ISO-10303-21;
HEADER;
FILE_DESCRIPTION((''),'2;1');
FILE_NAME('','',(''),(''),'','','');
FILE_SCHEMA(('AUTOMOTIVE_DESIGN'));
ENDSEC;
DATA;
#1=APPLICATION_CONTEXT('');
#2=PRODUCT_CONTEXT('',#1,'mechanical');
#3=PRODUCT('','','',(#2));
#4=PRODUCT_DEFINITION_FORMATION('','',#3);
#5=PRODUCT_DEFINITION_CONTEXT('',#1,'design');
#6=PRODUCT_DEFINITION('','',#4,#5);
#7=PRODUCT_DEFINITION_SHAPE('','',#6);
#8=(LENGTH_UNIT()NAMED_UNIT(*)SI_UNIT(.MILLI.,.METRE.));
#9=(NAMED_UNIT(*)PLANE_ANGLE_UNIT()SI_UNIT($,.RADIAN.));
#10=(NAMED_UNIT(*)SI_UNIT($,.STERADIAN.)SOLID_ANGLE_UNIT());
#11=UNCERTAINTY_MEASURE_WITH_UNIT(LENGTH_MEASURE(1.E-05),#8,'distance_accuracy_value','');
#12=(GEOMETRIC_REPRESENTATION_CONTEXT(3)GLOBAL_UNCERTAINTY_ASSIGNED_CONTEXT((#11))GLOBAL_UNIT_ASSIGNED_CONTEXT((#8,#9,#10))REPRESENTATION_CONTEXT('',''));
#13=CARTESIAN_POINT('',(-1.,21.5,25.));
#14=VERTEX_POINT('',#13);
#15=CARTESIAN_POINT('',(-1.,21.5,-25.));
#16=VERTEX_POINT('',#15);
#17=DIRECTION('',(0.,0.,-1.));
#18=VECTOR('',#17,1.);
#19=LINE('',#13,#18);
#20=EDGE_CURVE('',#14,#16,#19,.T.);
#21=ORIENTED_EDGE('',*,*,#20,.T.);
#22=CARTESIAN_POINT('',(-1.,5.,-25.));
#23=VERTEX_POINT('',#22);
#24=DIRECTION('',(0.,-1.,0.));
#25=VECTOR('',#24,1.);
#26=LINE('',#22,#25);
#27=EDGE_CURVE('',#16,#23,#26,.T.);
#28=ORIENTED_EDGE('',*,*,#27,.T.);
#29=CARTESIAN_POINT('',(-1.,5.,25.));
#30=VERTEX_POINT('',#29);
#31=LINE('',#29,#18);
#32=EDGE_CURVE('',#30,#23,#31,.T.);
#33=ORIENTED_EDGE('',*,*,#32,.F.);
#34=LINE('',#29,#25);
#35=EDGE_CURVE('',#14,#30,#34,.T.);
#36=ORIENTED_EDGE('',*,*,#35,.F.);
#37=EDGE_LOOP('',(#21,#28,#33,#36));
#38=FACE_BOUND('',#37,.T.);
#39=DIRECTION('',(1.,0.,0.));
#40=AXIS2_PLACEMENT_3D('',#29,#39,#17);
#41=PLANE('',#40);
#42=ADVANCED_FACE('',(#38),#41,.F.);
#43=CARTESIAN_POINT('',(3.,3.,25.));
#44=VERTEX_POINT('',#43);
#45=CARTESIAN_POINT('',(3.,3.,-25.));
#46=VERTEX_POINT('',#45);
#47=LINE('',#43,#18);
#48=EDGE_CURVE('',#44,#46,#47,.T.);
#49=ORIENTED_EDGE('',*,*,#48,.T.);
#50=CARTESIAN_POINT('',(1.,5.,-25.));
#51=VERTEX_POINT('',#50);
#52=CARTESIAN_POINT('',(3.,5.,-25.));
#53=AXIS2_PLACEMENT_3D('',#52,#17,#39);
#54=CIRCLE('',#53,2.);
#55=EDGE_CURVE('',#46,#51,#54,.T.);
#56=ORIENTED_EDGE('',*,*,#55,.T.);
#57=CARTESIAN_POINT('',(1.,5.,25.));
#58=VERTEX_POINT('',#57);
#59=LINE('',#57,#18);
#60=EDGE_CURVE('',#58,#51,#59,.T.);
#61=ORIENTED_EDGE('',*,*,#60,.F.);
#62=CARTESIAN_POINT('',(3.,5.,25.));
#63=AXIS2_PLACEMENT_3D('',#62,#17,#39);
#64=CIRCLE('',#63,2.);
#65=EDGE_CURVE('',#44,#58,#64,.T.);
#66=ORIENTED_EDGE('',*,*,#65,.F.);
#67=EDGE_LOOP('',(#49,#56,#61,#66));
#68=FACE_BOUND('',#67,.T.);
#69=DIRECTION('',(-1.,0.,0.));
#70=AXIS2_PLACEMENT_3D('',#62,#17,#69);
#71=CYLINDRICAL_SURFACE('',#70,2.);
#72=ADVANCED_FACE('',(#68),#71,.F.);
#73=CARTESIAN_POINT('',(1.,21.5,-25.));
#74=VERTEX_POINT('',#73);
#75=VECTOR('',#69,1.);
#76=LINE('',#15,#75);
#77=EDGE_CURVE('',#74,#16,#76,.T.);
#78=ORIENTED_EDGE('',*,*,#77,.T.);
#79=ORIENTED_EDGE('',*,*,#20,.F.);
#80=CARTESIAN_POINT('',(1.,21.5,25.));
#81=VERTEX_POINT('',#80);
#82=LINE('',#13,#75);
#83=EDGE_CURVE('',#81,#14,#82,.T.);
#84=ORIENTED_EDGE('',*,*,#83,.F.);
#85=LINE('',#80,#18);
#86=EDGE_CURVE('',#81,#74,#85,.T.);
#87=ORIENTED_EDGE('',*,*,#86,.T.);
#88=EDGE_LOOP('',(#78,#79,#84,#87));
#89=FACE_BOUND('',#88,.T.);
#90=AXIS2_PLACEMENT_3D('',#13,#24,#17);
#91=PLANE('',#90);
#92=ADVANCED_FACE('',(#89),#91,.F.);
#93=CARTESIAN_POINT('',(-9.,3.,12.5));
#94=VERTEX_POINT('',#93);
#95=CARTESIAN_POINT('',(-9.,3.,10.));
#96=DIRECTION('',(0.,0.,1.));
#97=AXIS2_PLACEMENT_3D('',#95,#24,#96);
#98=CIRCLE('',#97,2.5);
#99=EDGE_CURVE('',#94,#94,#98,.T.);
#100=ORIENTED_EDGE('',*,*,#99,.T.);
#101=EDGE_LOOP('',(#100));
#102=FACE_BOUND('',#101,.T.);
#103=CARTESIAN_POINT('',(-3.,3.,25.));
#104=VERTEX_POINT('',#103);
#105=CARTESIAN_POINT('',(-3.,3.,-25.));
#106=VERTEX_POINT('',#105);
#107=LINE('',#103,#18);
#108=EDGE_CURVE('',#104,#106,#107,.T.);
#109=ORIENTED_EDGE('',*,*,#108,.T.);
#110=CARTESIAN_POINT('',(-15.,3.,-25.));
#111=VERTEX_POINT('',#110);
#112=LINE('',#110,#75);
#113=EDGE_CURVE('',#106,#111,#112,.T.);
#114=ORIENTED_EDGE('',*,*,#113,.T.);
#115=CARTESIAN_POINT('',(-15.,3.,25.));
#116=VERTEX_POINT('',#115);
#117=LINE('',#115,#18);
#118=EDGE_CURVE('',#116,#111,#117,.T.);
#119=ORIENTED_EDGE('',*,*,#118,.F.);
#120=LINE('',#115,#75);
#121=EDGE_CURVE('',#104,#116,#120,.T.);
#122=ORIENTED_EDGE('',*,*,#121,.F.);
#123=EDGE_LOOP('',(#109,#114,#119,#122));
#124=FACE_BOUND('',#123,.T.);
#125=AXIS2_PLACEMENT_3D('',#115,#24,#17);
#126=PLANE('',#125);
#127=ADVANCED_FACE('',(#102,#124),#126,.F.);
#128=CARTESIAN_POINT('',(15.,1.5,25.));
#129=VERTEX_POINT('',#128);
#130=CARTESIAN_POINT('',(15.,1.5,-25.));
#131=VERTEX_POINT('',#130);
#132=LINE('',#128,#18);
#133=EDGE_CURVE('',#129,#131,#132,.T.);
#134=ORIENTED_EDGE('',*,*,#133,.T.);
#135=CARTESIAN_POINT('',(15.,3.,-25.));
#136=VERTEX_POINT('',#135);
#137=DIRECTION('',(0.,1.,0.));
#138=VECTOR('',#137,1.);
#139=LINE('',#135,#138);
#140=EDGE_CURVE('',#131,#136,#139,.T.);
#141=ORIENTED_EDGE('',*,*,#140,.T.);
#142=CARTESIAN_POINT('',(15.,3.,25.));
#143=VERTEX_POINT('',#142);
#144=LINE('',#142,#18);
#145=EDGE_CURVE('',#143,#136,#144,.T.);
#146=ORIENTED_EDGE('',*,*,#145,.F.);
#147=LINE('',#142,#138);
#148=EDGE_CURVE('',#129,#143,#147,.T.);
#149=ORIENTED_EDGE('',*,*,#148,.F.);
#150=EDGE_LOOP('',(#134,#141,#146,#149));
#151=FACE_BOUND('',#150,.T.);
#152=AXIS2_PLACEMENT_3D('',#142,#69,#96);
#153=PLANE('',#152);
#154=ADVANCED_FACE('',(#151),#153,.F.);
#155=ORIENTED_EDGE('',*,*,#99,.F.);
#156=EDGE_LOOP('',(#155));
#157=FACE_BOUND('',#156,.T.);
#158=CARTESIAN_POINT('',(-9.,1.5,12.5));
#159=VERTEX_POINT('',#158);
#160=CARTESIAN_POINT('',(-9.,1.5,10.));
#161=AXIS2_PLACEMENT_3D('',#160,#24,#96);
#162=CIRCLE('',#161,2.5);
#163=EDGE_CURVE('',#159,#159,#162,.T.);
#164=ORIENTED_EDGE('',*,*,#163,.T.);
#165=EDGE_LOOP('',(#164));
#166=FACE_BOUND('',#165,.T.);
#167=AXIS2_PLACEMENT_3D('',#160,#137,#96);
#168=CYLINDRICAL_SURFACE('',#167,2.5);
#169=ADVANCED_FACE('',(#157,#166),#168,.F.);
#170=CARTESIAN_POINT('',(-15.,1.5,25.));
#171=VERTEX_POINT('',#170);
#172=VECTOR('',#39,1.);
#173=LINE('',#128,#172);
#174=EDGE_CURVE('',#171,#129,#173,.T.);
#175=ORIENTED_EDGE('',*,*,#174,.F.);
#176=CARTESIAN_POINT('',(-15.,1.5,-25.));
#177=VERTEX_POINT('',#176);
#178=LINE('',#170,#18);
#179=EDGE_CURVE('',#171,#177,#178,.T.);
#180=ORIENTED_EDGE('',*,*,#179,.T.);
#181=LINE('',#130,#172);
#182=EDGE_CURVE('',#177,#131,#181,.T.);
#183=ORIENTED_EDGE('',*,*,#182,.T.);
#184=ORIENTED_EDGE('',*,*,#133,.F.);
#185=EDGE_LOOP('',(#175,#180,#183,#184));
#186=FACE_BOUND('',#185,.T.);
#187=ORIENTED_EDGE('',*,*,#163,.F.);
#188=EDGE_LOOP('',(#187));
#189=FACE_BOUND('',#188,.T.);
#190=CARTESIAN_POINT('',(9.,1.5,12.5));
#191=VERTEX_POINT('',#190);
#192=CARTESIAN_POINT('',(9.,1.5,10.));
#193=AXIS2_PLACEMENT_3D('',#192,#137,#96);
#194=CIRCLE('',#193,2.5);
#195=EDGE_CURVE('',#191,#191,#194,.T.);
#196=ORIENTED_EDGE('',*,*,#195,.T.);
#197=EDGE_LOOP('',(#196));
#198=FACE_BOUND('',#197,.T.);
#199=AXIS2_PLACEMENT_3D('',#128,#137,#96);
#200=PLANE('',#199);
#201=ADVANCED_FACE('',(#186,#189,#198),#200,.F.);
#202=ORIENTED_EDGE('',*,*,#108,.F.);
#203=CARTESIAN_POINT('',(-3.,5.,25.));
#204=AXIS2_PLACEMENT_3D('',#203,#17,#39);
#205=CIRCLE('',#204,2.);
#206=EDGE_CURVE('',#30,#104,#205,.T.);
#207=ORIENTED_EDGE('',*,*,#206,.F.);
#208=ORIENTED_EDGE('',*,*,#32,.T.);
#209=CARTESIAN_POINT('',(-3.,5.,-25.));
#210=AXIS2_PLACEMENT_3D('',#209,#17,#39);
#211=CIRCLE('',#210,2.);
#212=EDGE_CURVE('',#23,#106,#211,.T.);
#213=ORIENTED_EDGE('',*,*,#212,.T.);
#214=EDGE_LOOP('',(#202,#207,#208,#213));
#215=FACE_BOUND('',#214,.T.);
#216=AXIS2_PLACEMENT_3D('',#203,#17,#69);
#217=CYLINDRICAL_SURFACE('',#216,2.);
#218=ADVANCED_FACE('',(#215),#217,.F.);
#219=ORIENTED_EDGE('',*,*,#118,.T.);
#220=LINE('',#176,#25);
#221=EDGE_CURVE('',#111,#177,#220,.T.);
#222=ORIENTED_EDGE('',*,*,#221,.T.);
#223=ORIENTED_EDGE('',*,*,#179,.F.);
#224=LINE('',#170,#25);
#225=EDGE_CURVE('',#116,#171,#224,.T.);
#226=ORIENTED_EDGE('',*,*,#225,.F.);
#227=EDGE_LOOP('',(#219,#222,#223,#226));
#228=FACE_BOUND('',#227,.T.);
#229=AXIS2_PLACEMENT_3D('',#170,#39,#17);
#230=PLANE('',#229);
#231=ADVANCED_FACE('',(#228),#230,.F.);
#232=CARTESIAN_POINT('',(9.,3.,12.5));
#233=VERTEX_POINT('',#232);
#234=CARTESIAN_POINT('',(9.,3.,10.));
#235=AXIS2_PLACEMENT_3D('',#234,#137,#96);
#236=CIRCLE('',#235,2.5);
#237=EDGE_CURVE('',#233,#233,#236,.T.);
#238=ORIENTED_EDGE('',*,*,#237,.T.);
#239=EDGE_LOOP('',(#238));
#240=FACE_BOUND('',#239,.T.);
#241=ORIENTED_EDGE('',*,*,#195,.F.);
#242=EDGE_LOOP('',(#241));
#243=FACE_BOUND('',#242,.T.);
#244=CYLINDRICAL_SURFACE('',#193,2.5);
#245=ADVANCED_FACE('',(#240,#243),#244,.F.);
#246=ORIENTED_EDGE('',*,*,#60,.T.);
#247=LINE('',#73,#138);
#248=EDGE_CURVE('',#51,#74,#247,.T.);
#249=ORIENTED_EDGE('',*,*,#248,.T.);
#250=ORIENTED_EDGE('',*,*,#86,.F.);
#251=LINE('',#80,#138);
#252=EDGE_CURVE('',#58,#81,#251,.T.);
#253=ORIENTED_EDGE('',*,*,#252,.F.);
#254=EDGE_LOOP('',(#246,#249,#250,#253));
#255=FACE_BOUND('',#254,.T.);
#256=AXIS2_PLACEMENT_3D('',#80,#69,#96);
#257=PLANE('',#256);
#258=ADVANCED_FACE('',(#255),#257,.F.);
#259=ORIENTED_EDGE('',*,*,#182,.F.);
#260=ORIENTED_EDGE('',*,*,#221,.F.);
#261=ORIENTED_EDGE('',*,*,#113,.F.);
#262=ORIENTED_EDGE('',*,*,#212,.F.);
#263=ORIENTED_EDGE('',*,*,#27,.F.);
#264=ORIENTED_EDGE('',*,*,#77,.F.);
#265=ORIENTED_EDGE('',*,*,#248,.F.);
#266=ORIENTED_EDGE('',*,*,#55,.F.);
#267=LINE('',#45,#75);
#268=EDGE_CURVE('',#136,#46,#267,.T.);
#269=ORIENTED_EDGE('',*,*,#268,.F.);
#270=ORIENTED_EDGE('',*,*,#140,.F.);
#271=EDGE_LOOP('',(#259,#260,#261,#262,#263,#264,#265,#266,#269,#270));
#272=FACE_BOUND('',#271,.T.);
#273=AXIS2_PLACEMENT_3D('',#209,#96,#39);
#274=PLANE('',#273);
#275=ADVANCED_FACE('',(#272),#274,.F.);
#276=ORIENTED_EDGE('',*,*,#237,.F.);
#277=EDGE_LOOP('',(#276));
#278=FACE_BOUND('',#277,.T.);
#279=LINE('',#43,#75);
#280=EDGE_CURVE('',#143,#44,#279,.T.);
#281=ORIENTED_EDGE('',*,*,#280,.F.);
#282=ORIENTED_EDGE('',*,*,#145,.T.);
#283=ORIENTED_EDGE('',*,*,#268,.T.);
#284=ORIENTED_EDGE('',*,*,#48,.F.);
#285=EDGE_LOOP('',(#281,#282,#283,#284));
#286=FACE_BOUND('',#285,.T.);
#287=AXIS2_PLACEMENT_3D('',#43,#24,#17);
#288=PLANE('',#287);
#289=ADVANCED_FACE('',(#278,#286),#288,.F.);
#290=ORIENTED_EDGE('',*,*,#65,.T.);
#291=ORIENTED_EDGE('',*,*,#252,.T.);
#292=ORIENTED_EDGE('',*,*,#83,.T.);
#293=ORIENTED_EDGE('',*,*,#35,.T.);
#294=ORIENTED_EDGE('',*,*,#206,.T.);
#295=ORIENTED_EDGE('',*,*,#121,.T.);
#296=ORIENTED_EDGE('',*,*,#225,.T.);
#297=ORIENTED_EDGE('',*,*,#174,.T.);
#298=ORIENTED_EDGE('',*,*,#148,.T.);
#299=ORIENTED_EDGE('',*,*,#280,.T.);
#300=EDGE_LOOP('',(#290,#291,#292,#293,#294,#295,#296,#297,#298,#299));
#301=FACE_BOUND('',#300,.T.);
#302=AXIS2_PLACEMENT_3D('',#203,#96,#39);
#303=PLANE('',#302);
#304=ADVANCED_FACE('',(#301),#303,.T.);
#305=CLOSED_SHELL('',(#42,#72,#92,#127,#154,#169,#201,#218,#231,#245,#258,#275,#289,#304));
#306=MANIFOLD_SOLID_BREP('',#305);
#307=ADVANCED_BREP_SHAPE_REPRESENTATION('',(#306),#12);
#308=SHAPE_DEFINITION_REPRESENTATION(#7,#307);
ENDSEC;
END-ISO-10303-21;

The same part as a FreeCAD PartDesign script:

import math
import FreeCAD as App
import Part
import Sketcher
from FreeCAD import Vector

doc = App.newDocument("Part")
params = doc.addObject("Spreadsheet::Sheet", "Params")
for row, (alias, value) in enumerate([
    ("sketch1_radius", "2 mm"),
    ("sketch1_width", "30 mm"),
    ("sketch1_width2", "12 mm"),
    ("sketch1_height", "1.5 mm"),
    ("sketch1_height2", "16.5 mm"),
    ("pad1_length", "50 mm"),
    ("sketch2_diameter", "5 mm"),
], start=1):
    params.set(f"A{row}", alias)
    params.set(f"B{row}", "=" + value)
    params.setAlias(f"B{row}", alias)

body = doc.addObject("PartDesign::Body", "Body")

sketch1 = body.newObject("Sketcher::SketchObject", "Sketch")
sketch1.AttachmentSupport = (doc.getObject("XY_Plane"), [""])
sketch1.MapMode = "FlatFace"
sketch1.addGeometry(Part.LineSegment(Vector(-15, 1.5, 0), Vector(15, 1.5, 0)), False)
sketch1.addGeometry(Part.LineSegment(Vector(15, 1.5, 0), Vector(15, 3, 0)), False)
sketch1.addGeometry(Part.LineSegment(Vector(15, 3, 0), Vector(3, 3, 0)), False)
sketch1.addGeometry(Part.ArcOfCircle(Part.Circle(Vector(3, 5, 0), Vector(0, 0, 1), 2), math.radians(-180), math.radians(-90)), False)
sketch1.addGeometry(Part.LineSegment(Vector(1, 5, 0), Vector(1, 21.5, 0)), False)
sketch1.addGeometry(Part.LineSegment(Vector(1, 21.5, 0), Vector(-1, 21.5, 0)), False)
sketch1.addGeometry(Part.LineSegment(Vector(-1, 21.5, 0), Vector(-1, 5, 0)), False)
sketch1.addGeometry(Part.ArcOfCircle(Part.Circle(Vector(-3, 5, 0), Vector(0, 0, 1), 2), math.radians(-90), math.radians(0)), False)
sketch1.addGeometry(Part.LineSegment(Vector(-3, 3, 0), Vector(-15, 3, 0)), False)
sketch1.addGeometry(Part.LineSegment(Vector(-15, 3, 0), Vector(-15, 1.5, 0)), False)
sketch1.addConstraint(Sketcher.Constraint("Coincident", 0, 2, 1, 1))
sketch1.addConstraint(Sketcher.Constraint("Coincident", 1, 2, 2, 1))
sketch1.addConstraint(Sketcher.Constraint("Tangent", 2, 2, 3, 2))
sketch1.addConstraint(Sketcher.Constraint("Tangent", 3, 1, 4, 1))
sketch1.addConstraint(Sketcher.Constraint("Coincident", 4, 2, 5, 1))
sketch1.addConstraint(Sketcher.Constraint("Coincident", 5, 2, 6, 1))
sketch1.addConstraint(Sketcher.Constraint("Tangent", 6, 2, 7, 2))
sketch1.addConstraint(Sketcher.Constraint("Tangent", 7, 1, 8, 1))
sketch1.addConstraint(Sketcher.Constraint("Coincident", 8, 2, 9, 1))
sketch1.addConstraint(Sketcher.Constraint("Coincident", 9, 2, 0, 1))
sketch1.addConstraint(Sketcher.Constraint("Horizontal", 0))
sketch1.addConstraint(Sketcher.Constraint("Vertical", 1))
sketch1.addConstraint(Sketcher.Constraint("Horizontal", 2))
sketch1.addConstraint(Sketcher.Constraint("Vertical", 4))
sketch1.addConstraint(Sketcher.Constraint("Horizontal", 5))
sketch1.addConstraint(Sketcher.Constraint("Vertical", 6))
sketch1.addConstraint(Sketcher.Constraint("Horizontal", 8))
sketch1.addConstraint(Sketcher.Constraint("Vertical", 9))
sketch1.addConstraint(Sketcher.Constraint("Equal", 3, 7))
sketch1.addConstraint(Sketcher.Constraint("Symmetric", 3, 3, 7, 3, -2))
sketch1.addConstraint(Sketcher.Constraint("Equal", 2, 8))
sketch1.addConstraint(Sketcher.Constraint("Radius", 3, 2.0))
sketch1.addConstraint(Sketcher.Constraint("DistanceX", 0, 1, 0, 2, 30.0))
sketch1.addConstraint(Sketcher.Constraint("DistanceX", 2, 2, 2, 1, 12.0))
sketch1.addConstraint(Sketcher.Constraint("DistanceY", 1, 1, 1, 2, 1.5))
sketch1.addConstraint(Sketcher.Constraint("DistanceY", 4, 1, 4, 2, 16.5))
sketch1.addConstraint(Sketcher.Constraint("DistanceY", -1, 1, 3, 3, 5.0))
sketch1.setExpression("Constraints[21]", "Params.sketch1_radius")
sketch1.setExpression("Constraints[22]", "Params.sketch1_width")
sketch1.setExpression("Constraints[23]", "Params.sketch1_width2")
sketch1.setExpression("Constraints[24]", "Params.sketch1_height")
sketch1.setExpression("Constraints[25]", "Params.sketch1_height2")
pad1 = body.newObject("PartDesign::Pad", "Pad")
pad1.Profile = sketch1
pad1.setExpression("Length", "Params.pad1_length")
pad1.Midplane = True

sketch2 = body.newObject("Sketcher::SketchObject", "Sketch001")
sketch2.AttachmentSupport = (doc.getObject("XZ_Plane"), [""])
sketch2.MapMode = "FlatFace"
sketch2.AttachmentOffset = App.Placement(Vector(0, 0, -3), App.Rotation())
sketch2.addGeometry(Part.Circle(Vector(9, 10, 0), Vector(0, 0, 1), 2.5), False)
sketch2.addConstraint(Sketcher.Constraint("Diameter", 0, 5.0))
sketch2.addConstraint(Sketcher.Constraint("DistanceX", -1, 1, 0, 3, 9.0))
sketch2.addConstraint(Sketcher.Constraint("DistanceY", -1, 1, 0, 3, 10.0))
sketch2.setExpression("Constraints[0]", "Params.sketch2_diameter")
pocket1 = body.newObject("PartDesign::Pocket", "Pocket")
pocket1.Profile = sketch2
pocket1.Type = "ThroughAll"
pocket1.Reversed = True
doc.recompute()

mirrored = body.newObject("PartDesign::Mirrored", "Mirrored")
mirrored.Originals = [pocket1]
mirrored.MirrorPlane = (doc.getObject("YZ_Plane"), [""])
body.Tip = mirrored

doc.recompute()
